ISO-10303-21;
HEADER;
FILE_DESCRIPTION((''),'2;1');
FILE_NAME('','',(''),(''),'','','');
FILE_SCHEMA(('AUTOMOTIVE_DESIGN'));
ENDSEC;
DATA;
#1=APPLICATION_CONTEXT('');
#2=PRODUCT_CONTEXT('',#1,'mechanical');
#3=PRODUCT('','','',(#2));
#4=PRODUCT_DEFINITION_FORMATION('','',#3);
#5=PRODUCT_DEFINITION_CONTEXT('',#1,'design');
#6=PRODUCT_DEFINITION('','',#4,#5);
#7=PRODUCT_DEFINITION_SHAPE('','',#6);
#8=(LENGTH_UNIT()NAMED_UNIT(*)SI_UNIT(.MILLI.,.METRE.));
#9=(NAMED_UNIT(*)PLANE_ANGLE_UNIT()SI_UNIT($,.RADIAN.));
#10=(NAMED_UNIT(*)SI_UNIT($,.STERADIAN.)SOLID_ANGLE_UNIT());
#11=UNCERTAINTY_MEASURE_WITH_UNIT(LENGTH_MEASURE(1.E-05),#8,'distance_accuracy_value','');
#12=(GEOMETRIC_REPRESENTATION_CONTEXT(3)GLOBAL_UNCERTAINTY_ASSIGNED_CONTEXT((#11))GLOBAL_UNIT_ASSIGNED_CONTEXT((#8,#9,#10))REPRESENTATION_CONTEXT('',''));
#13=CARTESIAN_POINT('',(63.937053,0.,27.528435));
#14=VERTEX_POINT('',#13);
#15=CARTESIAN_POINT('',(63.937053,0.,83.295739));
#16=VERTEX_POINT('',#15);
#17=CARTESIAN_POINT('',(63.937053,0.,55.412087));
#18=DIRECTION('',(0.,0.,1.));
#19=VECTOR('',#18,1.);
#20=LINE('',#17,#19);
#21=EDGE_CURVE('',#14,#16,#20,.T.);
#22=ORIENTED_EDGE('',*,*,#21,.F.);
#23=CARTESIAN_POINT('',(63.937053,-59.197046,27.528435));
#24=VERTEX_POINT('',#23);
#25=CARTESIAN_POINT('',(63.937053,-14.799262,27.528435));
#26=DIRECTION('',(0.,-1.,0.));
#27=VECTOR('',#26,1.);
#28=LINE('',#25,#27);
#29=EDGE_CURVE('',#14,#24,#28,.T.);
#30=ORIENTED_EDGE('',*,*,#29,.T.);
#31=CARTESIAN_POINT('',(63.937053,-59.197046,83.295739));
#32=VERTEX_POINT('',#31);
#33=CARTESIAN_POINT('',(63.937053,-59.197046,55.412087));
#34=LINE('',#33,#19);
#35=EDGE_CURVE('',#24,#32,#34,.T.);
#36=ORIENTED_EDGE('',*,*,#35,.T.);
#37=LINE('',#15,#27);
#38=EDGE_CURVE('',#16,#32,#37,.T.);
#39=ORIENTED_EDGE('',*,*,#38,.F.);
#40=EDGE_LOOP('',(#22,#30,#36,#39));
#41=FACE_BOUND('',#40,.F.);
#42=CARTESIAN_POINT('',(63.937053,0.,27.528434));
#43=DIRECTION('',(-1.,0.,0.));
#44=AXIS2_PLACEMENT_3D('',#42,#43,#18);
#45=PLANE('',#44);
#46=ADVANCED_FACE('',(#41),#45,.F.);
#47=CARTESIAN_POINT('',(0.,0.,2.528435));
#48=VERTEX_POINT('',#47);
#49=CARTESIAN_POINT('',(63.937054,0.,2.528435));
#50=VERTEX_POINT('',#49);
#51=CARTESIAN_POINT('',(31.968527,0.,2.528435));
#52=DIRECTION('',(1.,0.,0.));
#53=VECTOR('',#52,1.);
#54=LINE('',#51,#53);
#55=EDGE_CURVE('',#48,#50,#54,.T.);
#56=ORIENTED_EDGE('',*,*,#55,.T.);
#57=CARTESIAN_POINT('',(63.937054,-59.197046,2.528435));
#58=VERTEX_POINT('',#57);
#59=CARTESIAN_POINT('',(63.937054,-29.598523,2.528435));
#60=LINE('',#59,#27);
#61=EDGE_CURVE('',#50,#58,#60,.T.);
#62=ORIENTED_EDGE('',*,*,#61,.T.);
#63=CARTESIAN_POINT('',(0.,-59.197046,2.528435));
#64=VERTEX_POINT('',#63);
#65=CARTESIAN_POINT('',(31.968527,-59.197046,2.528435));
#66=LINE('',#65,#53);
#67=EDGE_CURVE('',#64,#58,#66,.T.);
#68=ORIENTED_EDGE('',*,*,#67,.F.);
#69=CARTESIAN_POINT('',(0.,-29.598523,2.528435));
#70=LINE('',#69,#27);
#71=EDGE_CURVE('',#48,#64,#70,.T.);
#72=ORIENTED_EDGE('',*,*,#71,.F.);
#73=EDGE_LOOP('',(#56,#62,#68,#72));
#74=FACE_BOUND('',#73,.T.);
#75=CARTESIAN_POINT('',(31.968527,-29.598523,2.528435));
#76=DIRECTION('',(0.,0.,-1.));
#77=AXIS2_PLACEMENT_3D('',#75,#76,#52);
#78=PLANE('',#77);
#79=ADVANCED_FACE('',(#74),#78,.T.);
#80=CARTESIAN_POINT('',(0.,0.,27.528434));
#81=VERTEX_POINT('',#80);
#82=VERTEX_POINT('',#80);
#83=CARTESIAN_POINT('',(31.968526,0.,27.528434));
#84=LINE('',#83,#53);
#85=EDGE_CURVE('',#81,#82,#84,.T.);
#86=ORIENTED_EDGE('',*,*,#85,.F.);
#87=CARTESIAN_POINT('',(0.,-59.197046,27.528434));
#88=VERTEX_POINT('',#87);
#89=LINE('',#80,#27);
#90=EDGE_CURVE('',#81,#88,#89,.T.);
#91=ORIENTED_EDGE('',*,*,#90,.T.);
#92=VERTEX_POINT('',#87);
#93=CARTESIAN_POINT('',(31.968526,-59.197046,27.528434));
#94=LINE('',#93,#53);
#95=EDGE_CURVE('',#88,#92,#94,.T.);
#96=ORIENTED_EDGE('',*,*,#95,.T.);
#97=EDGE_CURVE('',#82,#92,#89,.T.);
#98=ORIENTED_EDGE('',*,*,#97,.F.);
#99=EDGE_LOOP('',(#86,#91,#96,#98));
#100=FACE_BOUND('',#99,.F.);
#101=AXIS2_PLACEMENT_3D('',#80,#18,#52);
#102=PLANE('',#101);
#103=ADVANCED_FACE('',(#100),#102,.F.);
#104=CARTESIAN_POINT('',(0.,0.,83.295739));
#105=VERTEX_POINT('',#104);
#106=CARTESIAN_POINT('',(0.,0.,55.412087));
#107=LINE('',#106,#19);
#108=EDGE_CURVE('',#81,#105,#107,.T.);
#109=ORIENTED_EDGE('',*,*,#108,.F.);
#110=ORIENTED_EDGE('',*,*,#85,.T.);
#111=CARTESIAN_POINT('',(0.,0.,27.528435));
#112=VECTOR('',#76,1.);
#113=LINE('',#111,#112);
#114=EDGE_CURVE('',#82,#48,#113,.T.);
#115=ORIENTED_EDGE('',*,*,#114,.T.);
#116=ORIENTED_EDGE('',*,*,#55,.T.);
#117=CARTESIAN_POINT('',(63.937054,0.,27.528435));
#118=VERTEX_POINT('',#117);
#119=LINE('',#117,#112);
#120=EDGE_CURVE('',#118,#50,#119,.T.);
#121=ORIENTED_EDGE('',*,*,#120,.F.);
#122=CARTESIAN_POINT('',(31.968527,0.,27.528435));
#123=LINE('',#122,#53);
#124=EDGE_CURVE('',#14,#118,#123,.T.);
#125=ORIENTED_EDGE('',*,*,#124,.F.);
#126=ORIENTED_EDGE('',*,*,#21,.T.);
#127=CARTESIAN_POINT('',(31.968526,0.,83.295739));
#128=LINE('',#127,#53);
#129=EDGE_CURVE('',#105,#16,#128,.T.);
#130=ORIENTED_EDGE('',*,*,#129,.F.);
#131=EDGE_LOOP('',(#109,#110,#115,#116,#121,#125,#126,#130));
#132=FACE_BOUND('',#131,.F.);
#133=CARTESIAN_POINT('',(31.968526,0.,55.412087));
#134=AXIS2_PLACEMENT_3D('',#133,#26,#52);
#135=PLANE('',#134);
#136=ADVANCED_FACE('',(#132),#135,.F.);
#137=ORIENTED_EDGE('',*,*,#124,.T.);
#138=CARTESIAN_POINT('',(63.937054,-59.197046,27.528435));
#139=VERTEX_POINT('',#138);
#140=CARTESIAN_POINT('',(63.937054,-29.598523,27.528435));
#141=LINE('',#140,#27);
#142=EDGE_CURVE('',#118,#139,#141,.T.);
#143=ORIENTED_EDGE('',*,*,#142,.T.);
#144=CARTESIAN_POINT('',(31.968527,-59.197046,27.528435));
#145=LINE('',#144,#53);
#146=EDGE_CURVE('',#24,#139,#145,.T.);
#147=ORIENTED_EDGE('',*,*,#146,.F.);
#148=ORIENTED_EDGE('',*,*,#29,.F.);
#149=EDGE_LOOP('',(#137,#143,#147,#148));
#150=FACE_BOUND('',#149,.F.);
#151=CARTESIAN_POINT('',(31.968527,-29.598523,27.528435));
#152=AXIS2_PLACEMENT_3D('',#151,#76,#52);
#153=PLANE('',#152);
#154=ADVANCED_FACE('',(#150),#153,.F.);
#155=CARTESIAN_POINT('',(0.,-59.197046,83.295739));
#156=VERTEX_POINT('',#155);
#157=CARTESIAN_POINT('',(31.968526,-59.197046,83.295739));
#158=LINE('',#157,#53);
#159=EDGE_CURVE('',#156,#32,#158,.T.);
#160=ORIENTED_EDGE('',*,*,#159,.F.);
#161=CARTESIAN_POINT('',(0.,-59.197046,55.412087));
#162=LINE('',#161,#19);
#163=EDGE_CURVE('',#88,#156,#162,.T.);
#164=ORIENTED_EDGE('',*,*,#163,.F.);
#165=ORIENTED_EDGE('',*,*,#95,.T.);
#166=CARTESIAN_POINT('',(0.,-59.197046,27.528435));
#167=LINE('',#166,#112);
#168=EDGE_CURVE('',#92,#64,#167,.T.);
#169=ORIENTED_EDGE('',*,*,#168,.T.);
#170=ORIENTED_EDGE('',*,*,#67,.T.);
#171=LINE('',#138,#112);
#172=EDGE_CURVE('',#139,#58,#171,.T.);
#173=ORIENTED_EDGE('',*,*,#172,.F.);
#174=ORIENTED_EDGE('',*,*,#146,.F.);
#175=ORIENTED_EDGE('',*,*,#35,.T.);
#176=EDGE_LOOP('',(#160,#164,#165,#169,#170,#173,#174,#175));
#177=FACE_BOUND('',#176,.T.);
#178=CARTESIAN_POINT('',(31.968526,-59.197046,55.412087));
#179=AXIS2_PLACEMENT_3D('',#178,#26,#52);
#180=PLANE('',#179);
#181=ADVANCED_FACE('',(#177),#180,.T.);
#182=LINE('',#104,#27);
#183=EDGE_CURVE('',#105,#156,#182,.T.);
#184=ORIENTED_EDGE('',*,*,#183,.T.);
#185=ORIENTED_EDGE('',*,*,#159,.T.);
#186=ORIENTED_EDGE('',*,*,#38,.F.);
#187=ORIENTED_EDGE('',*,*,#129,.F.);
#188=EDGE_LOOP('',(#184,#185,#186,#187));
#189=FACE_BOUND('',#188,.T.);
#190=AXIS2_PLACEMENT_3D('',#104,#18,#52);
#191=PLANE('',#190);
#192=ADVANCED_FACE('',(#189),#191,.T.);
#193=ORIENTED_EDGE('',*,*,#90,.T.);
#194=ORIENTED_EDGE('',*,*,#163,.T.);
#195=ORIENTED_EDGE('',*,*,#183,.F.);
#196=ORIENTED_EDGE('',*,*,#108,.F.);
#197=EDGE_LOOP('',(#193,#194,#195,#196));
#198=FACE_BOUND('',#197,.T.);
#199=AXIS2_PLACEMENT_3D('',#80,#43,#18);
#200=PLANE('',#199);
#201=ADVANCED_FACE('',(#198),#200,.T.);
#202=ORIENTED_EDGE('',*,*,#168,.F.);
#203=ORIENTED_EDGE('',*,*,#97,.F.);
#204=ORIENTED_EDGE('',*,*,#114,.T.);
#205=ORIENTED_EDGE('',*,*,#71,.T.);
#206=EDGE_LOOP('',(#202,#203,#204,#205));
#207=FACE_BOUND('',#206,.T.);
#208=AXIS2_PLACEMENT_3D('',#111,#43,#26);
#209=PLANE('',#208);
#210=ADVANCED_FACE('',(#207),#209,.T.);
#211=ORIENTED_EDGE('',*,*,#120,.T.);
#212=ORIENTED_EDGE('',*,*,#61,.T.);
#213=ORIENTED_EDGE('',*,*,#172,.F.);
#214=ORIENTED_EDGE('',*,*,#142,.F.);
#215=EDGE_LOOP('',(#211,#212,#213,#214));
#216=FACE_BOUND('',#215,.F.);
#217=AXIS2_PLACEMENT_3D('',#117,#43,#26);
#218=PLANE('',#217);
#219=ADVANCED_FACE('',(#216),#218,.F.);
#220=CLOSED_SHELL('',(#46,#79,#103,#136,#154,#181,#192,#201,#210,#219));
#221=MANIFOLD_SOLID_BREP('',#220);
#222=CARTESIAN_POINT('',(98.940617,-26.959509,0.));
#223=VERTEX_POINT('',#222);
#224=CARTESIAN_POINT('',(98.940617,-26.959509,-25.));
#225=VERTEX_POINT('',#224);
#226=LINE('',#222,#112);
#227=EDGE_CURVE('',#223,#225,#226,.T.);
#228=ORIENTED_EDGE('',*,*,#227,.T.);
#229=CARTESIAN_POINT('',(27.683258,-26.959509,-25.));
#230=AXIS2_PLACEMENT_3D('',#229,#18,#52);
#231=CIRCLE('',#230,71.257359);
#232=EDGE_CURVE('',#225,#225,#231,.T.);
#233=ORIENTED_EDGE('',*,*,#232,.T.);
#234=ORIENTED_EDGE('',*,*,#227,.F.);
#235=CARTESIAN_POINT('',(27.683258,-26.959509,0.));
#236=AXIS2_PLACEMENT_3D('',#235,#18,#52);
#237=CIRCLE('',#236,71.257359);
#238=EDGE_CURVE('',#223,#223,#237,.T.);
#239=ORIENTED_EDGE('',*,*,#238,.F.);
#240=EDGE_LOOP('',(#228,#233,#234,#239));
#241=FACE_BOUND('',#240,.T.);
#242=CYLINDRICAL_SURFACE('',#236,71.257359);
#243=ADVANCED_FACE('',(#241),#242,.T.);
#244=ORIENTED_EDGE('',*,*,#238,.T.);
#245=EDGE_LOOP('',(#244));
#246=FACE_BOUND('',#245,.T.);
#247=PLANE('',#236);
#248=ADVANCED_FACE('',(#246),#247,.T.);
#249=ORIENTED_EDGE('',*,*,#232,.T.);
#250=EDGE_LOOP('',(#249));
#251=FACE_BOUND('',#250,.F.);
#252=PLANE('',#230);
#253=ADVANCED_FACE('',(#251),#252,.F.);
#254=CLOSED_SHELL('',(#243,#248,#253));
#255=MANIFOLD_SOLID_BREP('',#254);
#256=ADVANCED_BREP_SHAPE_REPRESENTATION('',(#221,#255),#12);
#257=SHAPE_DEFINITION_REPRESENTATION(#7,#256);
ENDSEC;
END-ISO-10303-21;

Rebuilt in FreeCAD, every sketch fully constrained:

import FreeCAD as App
import Part
import Sketcher

V = App.Vector
Q = App.Units.Quantity

doc = App.newDocument("Part")
body = doc.addObject("PartDesign::Body", "Body")

# Sketch on XZ plane
sketch1 = doc.addObject("Sketcher::SketchObject", "Sketch")
body.addObject(sketch1)
sketch1.AttachmentSupport = (doc.XZ_Plane, [""])
sketch1.MapMode = "FlatFace"
sketch1.addGeometry(Part.LineSegment(V(0, 83, 0), V(0, 28, 0)), False)
sketch1.addGeometry(Part.LineSegment(V(0, 28, 0), V(64, 28, 0)), False)
sketch1.addGeometry(Part.LineSegment(V(64, 28, 0), V(64, 83, 0)), False)
sketch1.addGeometry(Part.LineSegment(V(64, 83, 0), V(0, 83, 0)), False)
sketch1.addConstraint(Sketcher.Constraint("Coincident", 0, 2, 1, 1))
sketch1.addConstraint(Sketcher.Constraint("Coincident", 1, 2, 2, 1))
sketch1.addConstraint(Sketcher.Constraint("Coincident", 2, 2, 3, 1))
sketch1.addConstraint(Sketcher.Constraint("Coincident", 3, 2, 0, 1))
sketch1.addConstraint(Sketcher.Constraint("Vertical", 0))
sketch1.addConstraint(Sketcher.Constraint("Horizontal", 1))
sketch1.addConstraint(Sketcher.Constraint("Vertical", 2))
sketch1.addConstraint(Sketcher.Constraint("Horizontal", 3))
sketch1.addConstraint(Sketcher.Constraint("PointOnObject", 0, 2, -2))
sketch1.addConstraint(Sketcher.Constraint("DistanceX", 1, 1, 1, 2, Q("63.937053 mm")))
sketch1.addConstraint(Sketcher.Constraint("DistanceY", 0, 2, 0, 1, Q("55.767305 mm")))
sketch1.addConstraint(Sketcher.Constraint("DistanceY", -1, 1, 2, 2, Q("83.295739 mm")))
pad1 = doc.addObject("PartDesign::Pad", "Pad")
body.addObject(pad1)
pad1.Profile = sketch1
pad1.Length = 59.197046

# Sketch on XY plane
sketch2 = doc.addObject("Sketcher::SketchObject", "Sketch001")
body.addObject(sketch2)
sketch2.AttachmentSupport = (doc.XY_Plane, [""])
sketch2.MapMode = "FlatFace"
sketch2.AttachmentOffset = App.Placement(V(0, 0, 27.528435), App.Rotation())
sketch2.addGeometry(Part.LineSegment(V(0, -59, 0), V(0, 0, 0)), False)
sketch2.addGeometry(Part.LineSegment(V(0, 0, 0), V(64, 0, 0)), False)
sketch2.addGeometry(Part.LineSegment(V(64, 0, 0), V(64, -59, 0)), False)
sketch2.addGeometry(Part.LineSegment(V(64, -59, 0), V(0, -59, 0)), False)
sketch2.addConstraint(Sketcher.Constraint("Coincident", 0, 2, 1, 1))
sketch2.addConstraint(Sketcher.Constraint("Coincident", 1, 2, 2, 1))
sketch2.addConstraint(Sketcher.Constraint("Coincident", 2, 2, 3, 1))
sketch2.addConstraint(Sketcher.Constraint("Coincident", 3, 2, 0, 1))
sketch2.addConstraint(Sketcher.Constraint("Vertical", 0))
sketch2.addConstraint(Sketcher.Constraint("Horizontal", 1))
sketch2.addConstraint(Sketcher.Constraint("Vertical", 2))
sketch2.addConstraint(Sketcher.Constraint("Horizontal", 3))
sketch2.addConstraint(Sketcher.Constraint("Coincident", 0, 2, -1, 1))
sketch2.addConstraint(Sketcher.Constraint("DistanceX", 1, 1, 1, 2, Q("63.937054 mm")))
sketch2.addConstraint(Sketcher.Constraint("DistanceY", 0, 1, 0, 2, Q("59.197046 mm")))
pad2 = doc.addObject("PartDesign::Pad", "Pad001")
body.addObject(pad2)
pad2.Profile = sketch2
pad2.Length = 25
pad2.Reversed = True
body2 = doc.addObject("PartDesign::Body", "Body001")

# Sketch on XY plane
sketch3 = doc.addObject("Sketcher::SketchObject", "Sketch002")
body2.addObject(sketch3)
sketch3.AttachmentSupport = (doc.getObject("XY_Plane001"), [""])
sketch3.MapMode = "FlatFace"
sketch3.addGeometry(Part.Circle(V(28, -27, 0), V(0, 0, 1), 71), False)
sketch3.addConstraint(Sketcher.Constraint("Diameter", 0, Q("142.514718 mm")))
sketch3.addConstraint(Sketcher.Constraint("DistanceY", 0, 3, -1, 1, Q("26.959509 mm")))
sketch3.addConstraint(Sketcher.Constraint("DistanceX", -1, 1, 0, 3, Q("27.683258 mm")))
pad3 = doc.addObject("PartDesign::Pad", "Pad002")
body2.addObject(pad3)
pad3.Profile = sketch3
pad3.Length = 25
pad3.Reversed = True

doc.recompute()
